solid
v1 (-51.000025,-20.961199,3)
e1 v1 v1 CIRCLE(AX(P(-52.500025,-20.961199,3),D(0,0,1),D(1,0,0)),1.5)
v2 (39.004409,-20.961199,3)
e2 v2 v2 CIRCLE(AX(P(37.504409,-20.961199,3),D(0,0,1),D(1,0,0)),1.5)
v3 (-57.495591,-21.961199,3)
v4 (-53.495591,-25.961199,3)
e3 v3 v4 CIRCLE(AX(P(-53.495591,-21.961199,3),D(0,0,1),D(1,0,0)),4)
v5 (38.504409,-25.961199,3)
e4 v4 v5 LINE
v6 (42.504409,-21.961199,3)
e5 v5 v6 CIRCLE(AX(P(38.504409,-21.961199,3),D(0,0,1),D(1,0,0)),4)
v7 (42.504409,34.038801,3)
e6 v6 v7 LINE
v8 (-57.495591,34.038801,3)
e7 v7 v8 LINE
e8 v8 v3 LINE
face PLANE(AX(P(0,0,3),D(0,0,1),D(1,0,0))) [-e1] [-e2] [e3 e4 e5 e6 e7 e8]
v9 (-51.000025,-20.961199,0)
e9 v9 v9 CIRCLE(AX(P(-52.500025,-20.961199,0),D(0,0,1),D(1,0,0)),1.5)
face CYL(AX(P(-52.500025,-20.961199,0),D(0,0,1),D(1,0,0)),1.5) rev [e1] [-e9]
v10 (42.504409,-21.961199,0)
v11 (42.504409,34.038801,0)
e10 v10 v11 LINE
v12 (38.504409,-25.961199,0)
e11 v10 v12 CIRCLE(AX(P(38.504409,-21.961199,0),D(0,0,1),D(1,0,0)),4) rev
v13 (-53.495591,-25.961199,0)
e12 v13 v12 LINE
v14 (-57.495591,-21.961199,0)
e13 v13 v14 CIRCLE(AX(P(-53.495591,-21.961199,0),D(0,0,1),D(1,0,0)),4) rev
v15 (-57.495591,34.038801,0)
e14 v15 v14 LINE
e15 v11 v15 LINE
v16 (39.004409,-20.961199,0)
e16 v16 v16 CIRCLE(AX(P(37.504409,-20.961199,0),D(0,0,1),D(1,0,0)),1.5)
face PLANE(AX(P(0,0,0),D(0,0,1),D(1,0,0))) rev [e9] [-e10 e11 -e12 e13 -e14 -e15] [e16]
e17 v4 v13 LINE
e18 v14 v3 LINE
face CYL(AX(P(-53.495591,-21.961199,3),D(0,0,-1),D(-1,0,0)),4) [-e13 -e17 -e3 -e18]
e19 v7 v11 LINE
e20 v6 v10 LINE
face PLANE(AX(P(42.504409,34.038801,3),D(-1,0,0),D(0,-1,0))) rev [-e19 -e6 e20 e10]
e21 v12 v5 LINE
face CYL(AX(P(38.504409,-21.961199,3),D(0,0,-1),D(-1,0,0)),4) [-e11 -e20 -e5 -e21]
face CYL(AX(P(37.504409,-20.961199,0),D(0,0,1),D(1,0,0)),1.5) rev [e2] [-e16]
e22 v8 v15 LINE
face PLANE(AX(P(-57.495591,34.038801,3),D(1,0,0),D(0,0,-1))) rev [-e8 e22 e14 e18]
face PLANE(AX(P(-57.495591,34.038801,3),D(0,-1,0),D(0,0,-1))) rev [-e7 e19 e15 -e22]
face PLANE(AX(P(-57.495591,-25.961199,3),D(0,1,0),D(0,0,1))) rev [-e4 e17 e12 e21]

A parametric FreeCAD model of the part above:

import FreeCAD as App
import Part
import Sketcher
Q = App.Units.Quantity


def edges_at(feature, points):
    """Names of the edges that pass closest to the given points."""
    edges = feature.Shape.Edges
    near = lambda p: min(range(len(edges)), key=lambda i: edges[i].distToShape(Part.Vertex(*p))[0])
    return sorted({f"Edge{near(p) + 1}" for p in points})


def add_polygon(sketch, points):
    """Adds a closed chain of lines whose ends are joined by coincident constraints."""
    first, n = sketch.GeometryCount, len(points)
    for a, b in zip(points, points[1:] + points[:1]):
        sketch.addGeometry(Part.LineSegment(App.Vector(*a, 0), App.Vector(*b, 0)), False)
    for i in range(n):
        sketch.addConstraint(Sketcher.Constraint("Coincident", first + i, 2, first + (i + 1) % n, 1))

doc = App.newDocument("Part")
body = doc.addObject("PartDesign::Body", "Body")

# Sketch on XY plane
sketch1 = body.newObject("Sketcher::SketchObject", "Sketch")
sketch1.AttachmentSupport = (doc.getObject("XY_Plane"), [""])
sketch1.MapMode = "FlatFace"
add_polygon(sketch1, [(-57.495591, 34.038801), (-57.495591, -25.961199), (42.504409, -25.961199), (42.504409, 34.038801)])  # lines 0-3
sketch1.addConstraint([
    Sketcher.Constraint("Vertical", 0),
    Sketcher.Constraint("Horizontal", 1),
    Sketcher.Constraint("Vertical", 2),
    Sketcher.Constraint("Horizontal", 3),
    Sketcher.Constraint("DistanceX", 1, 1, 1, 2, Q("100 mm")),
    Sketcher.Constraint("DistanceY", 0, 2, 0, 1, Q("60 mm")),
    Sketcher.Constraint("DistanceY", 0, 2, -1, 1, Q("25.961199 mm")),
    Sketcher.Constraint("DistanceX", 0, 2, -1, 1, Q("57.495591 mm")),
])
pad1 = body.newObject("PartDesign::Pad", "Pad")
pad1.Profile = sketch1
pad1.Length = 3

# Sketch on XY plane
sketch2 = body.newObject("Sketcher::SketchObject", "Sketch001")
sketch2.AttachmentSupport = (doc.getObject("XY_Plane"), [""])
sketch2.MapMode = "FlatFace"
sketch2.AttachmentOffset = App.Placement(App.Vector(0, 0, 3), App.Rotation())
sketch2.addGeometry([
    Part.Circle(App.Vector(37.504409, -20.961199, 0), App.Vector(0, 0, 1), 1.5),
    Part.Circle(App.Vector(-52.500025, -20.961199, 0), App.Vector(0, 0, 1), 1.5),
], False)
sketch2.addConstraint([
    Sketcher.Constraint("Equal", 0, 1),
    Sketcher.Constraint("Horizontal", 0, 3, 1, 3),
    Sketcher.Constraint("Diameter", 0, Q("3 mm")),
    Sketcher.Constraint("DistanceY", 0, 3, -1, 1, Q("20.961199 mm")),
    Sketcher.Constraint("DistanceX", -1, 1, 0, 3, Q("37.504409 mm")),
    Sketcher.Constraint("DistanceX", 1, 3, -1, 1, Q("52.500025 mm")),
])
pocket1 = body.newObject("PartDesign::Pocket", "Pocket")
pocket1.Profile = sketch2
pocket1.Length = 3
doc.recompute()

fillet = body.newObject("PartDesign::Fillet", "Fillet")
fillet.Base = (pocket1, edges_at(pocket1, [(42.504, -25.961, 1.5), (-57.496, -25.961, 1.5)]))
fillet.Radius = 4

doc.recompute()
